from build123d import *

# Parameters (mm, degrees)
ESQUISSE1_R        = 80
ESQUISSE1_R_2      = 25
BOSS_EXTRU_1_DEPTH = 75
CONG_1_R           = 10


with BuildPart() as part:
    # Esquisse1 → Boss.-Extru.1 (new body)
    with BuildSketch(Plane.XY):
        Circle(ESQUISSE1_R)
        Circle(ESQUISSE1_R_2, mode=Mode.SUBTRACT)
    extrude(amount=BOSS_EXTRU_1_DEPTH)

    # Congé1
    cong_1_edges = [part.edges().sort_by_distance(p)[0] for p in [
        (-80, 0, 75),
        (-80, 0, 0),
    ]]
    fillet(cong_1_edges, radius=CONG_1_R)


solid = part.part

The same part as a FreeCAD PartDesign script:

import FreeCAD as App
import Part
import Sketcher
Q = App.Units.Quantity


def edges_at(feature, points):
    """Names of the edges that pass closest to the given points."""
    edges = feature.Shape.Edges
    near = lambda p: min(range(len(edges)), key=lambda i: edges[i].distToShape(Part.Vertex(*p))[0])
    return sorted({f"Edge{near(p) + 1}" for p in points})

doc = App.newDocument("Part")
body = doc.addObject("PartDesign::Body", "Body")

# Sketch on XY plane
sketch1 = body.newObject("Sketcher::SketchObject", "Sketch")
sketch1.AttachmentSupport = (doc.getObject("XY_Plane"), [""])
sketch1.MapMode = "FlatFace"
sketch1.addGeometry([
    Part.Circle(App.Vector(0, 0, 0), App.Vector(0, 0, 1), 80),
    Part.Circle(App.Vector(0, 0, 0), App.Vector(0, 0, 1), 25),
], False)
sketch1.addConstraint([
    Sketcher.Constraint("Coincident", 0, 3, -1, 1),
    Sketcher.Constraint("Coincident", 1, 3, -1, 1),
    Sketcher.Constraint("Diameter", 0, Q("160 mm")),
    Sketcher.Constraint("Diameter", 1, Q("50 mm")),
])
pad1 = body.newObject("PartDesign::Pad", "Pad")
pad1.Profile = sketch1
pad1.Length = 75
doc.recompute()

fillet = body.newObject("PartDesign::Fillet", "Fillet")
fillet.Base = (pad1, edges_at(pad1, [(-80, 0, 75), (-80, 0, 0)]))
fillet.Radius = 10

doc.recompute()
